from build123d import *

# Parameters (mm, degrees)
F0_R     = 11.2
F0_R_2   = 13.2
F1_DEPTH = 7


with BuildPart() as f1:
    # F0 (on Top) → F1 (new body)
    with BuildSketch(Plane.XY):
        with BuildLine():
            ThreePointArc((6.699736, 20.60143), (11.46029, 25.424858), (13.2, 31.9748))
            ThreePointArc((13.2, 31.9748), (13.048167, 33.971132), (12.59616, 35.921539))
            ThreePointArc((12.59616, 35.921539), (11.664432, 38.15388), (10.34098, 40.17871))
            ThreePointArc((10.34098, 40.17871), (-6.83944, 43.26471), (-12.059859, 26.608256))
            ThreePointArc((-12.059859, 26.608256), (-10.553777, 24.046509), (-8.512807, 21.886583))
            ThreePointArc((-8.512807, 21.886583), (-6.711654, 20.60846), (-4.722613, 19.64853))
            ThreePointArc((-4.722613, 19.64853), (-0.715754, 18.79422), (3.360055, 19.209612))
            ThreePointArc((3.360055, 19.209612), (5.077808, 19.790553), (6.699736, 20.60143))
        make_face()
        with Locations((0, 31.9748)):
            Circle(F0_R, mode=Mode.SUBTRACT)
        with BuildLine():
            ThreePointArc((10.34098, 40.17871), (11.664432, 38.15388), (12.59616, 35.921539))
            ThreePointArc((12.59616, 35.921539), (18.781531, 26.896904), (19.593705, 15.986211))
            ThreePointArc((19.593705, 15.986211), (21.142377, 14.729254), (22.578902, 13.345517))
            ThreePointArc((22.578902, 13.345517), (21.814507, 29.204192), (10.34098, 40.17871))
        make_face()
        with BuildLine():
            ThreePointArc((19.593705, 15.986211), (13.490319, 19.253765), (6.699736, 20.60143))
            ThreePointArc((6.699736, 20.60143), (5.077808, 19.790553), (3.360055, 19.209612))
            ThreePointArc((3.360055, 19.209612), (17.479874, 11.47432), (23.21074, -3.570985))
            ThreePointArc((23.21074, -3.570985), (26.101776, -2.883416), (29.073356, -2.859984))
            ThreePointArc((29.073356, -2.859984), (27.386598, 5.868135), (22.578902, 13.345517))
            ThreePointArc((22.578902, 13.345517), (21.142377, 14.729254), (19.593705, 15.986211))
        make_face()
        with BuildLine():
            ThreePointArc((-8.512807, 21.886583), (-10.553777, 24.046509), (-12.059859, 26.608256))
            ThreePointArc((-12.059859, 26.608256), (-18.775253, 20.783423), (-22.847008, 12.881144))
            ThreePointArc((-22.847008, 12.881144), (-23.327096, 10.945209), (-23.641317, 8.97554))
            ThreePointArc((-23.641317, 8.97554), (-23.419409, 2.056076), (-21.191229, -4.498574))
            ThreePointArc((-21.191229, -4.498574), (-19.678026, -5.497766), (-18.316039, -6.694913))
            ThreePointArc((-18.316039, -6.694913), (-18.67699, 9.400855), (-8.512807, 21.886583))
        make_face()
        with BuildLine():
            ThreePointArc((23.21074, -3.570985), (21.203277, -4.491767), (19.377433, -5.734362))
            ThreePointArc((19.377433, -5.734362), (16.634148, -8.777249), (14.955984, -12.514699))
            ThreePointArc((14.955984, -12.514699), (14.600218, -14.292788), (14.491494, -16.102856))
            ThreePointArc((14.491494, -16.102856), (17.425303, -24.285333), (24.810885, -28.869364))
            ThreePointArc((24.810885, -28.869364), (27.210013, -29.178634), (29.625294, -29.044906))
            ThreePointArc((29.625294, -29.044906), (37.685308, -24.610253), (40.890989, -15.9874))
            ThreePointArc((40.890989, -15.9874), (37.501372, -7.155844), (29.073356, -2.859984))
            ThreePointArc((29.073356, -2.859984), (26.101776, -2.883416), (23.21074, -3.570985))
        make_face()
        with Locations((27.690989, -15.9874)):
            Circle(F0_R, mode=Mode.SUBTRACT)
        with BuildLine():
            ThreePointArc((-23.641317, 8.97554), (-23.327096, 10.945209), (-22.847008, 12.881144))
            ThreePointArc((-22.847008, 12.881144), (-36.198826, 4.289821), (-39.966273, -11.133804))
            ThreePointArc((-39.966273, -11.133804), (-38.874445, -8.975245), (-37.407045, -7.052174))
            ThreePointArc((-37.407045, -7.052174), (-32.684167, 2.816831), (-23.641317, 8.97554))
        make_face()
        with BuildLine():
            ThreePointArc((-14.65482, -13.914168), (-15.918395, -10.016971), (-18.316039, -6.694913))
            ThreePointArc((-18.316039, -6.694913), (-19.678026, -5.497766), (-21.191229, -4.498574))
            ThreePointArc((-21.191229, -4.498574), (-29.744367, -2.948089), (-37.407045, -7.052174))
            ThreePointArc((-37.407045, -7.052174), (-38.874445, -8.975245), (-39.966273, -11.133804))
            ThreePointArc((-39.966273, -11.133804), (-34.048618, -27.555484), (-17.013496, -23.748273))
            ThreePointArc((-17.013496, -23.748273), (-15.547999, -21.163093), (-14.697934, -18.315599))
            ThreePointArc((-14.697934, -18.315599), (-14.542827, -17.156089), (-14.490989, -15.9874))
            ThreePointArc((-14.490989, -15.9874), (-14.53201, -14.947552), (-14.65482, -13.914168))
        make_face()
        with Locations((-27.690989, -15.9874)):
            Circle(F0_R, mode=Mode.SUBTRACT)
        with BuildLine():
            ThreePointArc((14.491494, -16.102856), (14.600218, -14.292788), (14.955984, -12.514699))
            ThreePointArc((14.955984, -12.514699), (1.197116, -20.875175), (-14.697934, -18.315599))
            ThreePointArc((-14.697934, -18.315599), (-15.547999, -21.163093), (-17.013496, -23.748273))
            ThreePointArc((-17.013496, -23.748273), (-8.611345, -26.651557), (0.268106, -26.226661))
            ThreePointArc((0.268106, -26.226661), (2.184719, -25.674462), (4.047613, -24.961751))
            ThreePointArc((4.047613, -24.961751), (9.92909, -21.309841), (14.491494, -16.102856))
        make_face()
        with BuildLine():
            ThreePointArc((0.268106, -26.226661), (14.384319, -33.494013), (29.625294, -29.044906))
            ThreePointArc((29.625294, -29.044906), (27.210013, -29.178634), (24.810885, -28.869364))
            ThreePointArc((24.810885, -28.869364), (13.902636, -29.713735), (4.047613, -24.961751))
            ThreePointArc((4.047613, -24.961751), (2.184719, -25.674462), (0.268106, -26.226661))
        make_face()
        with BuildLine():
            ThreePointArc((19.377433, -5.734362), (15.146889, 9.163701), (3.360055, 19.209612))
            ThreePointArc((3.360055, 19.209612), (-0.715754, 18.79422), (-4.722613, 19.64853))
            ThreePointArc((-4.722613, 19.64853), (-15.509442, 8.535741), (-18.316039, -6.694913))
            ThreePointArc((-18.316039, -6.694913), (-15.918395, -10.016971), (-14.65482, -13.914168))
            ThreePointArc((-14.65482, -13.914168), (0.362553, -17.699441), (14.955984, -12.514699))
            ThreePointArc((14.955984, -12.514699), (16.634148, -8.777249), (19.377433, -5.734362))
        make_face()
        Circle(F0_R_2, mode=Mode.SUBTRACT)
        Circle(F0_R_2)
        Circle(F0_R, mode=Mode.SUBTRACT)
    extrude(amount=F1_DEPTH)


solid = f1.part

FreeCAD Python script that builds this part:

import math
import FreeCAD as App
import Part
import Sketcher

doc = App.newDocument("Part")
body = doc.addObject("PartDesign::Body", "Body")

# Sketch on XY plane
sketch1 = body.newObject("Sketcher::SketchObject", "Sketch")
sketch1.AttachmentSupport = (doc.getObject("XY_Plane"), [""])
sketch1.MapMode = "FlatFace"
sketch1.addGeometry([
    Part.ArcOfCircle(Part.Circle(App.Vector(2.328667, 20.317206, 0), App.Vector(0, 0, 1), 21.416734), math.radians(-18.997405), math.radians(68.030398)),  # 0
    Part.ArcOfCircle(Part.Circle(App.Vector(0, 31.9748, 0), App.Vector(0, 0, 1), 13.2), math.radians(38.426363), math.radians(203.988696)),  # 1
    Part.ArcOfCircle(Part.Circle(App.Vector(-0.294816, 6.260978, 0), App.Vector(0, 0, 1), 23.503786), math.radians(120.037022), math.radians(163.640468)),  # 2
    Part.ArcOfCircle(Part.Circle(App.Vector(-18.759551, -8.141918, 0), App.Vector(0, 0, 1), 21.416732), math.radians(101.002593), math.radians(188.030403)),  # 3
    Part.ArcOfCircle(Part.Circle(App.Vector(-27.690989, -15.987401, 0), App.Vector(0, 0, 1), 13.2), math.radians(158.426362), math.radians(323.988694)),  # 4
    Part.ArcOfCircle(Part.Circle(App.Vector(-5.274758, -3.385796, 0), App.Vector(0, 0, 1), 23.503796), math.radians(-119.962964), math.radians(-76.359539)),  # 5
    Part.ArcOfCircle(Part.Circle(App.Vector(16.430884, -12.175287, 0), App.Vector(0, 0, 1), 21.416734), math.radians(-138.997405), math.radians(-51.969601)),  # 6
    Part.ArcOfCircle(Part.Circle(App.Vector(27.69099, -15.987401, 0), App.Vector(0, 0, 1), 13.199999), math.radians(-81.573637), math.radians(0.000003)),  # 7
    Part.ArcOfCircle(Part.Circle(App.Vector(27.690989, -15.9874, 0), App.Vector(0, 0, 1), 13.2), math.radians(0), math.radians(83.988692)),  # 8
    Part.ArcOfCircle(Part.Circle(App.Vector(5.569563, -2.875177, 0), App.Vector(0, 0, 1), 23.503798), math.radians(0.037036), math.radians(43.640459)),  # 9
    Part.Circle(App.Vector(-27.690989, -15.9874, 0), App.Vector(0, 0, 1), 11.2),  # 10
    Part.ArcOfCircle(Part.Circle(App.Vector(-16.737897, -10.878948, 0), App.Vector(0, 0, 1), 21.020416), math.radians(109.172602), math.radians(169.510792)),  # 11
    Part.ArcOfCircle(Part.Circle(App.Vector(-0.294819, 6.260975, 0), App.Vector(0, 0, 1), 23.503784), math.radians(173.367833), math.radians(207.24391)),  # 12
    Part.ArcOfCircle(Part.Circle(App.Vector(-27.690989, -15.987402, 0), App.Vector(0, 0, 1), 13.200002), math.radians(60.501158), math.radians(137.397263)),  # 13
    Part.ArcOfCircle(Part.Circle(App.Vector(-5.274761, -3.385798, 0), App.Vector(0, 0, 1), 23.503796), math.radians(-66.632159), math.radians(-32.7561)),  # 14
    Part.ArcOfCircle(Part.Circle(App.Vector(27.690988, -15.9874, 0), App.Vector(0, 0, 1), 13.199999), math.radians(-179.498848), math.radians(-102.602725)),  # 15
    Part.ArcOfCircle(Part.Circle(App.Vector(17.790392, -9.055975, 0), App.Vector(0, 0, 1), 21.020411), math.radians(-130.827405), math.radians(-70.4892)),  # 16
    Part.ArcOfCircle(Part.Circle(App.Vector(-27.690955, -15.987401, 0), App.Vector(0, 0, 1), 13.199966), math.radians(-10.158924), math.radians(0.000003)),  # 17
    Part.ArcOfCircle(Part.Circle(App.Vector(-27.690799, -15.987387, 0), App.Vector(0, 0, 1), 13.19981), math.radians(-0.000058), math.radians(9.036537)),  # 18
    Part.ArcOfCircle(Part.Circle(App.Vector(-0.898375, 8.980026, 0), App.Vector(0, 0, 1), 26.709248), math.radians(-121.000414), math.radians(-53.587774)),  # 19
    Part.ArcOfCircle(Part.Circle(App.Vector(-3.275084, 1.986492, 0), App.Vector(0, 0, 1), 23.294986), math.radians(-119.364021), math.radians(-38.499123)),  # 20
    Part.Circle(App.Vector(27.690989, -15.9874, 0), App.Vector(0, 0, 1), 11.2),  # 21
    Part.Circle(App.Vector(0, 0, 0), App.Vector(0, 0, 1), 11.2),  # 22
    Part.ArcOfCircle(Part.Circle(App.Vector(3.357892, 1.843061, 0), App.Vector(0, 0, 1), 23.294984), math.radians(120.635975), math.radians(201.500881)),  # 23
    Part.ArcOfCircle(Part.Circle(App.Vector(0.000029, 31.974849, 0), App.Vector(0, 0, 1), 13.200056), math.radians(-130.158858), math.radians(-110.963576)),  # 24
    Part.ArcOfCircle(Part.Circle(App.Vector(8.226115, -3.711996, 0), App.Vector(0, 0, 1), 26.709245), math.radians(118.999582), math.radians(186.41223)),  # 25
    Part.ArcOfCircle(Part.Circle(App.Vector(-0.08281, -3.829551, 0), App.Vector(0, 0, 1), 23.294985), math.radians(0.635975), math.radians(81.500877)),  # 26
    Part.ArcOfCircle(Part.Circle(App.Vector(27.691004, -15.987429, 0), App.Vector(0, 0, 1), 13.200032), math.radians(109.841122), math.radians(129.036436)),  # 27
    Part.ArcOfCircle(Part.Circle(App.Vector(-7.327743, -5.268028, 0), App.Vector(0, 0, 1), 26.709248), math.radians(-1.000414), math.radians(66.412227)),  # 28
    Part.Circle(App.Vector(0, 31.9748, 0), App.Vector(0, 0, 1), 11.2),  # 29
    Part.ArcOfCircle(Part.Circle(App.Vector(-0.000004, 31.974802, 0), App.Vector(0, 0, 1), 13.200004), math.radians(-59.498833), math.radians(-0.000009)),  # 30
    Part.ArcOfCircle(Part.Circle(App.Vector(0.000019, 31.974802, 0), App.Vector(0, 0, 1), 13.199981), math.radians(-0.00001), math.radians(17.397288)),  # 31
    Part.ArcOfCircle(Part.Circle(App.Vector(-1.052497, 19.934917, 0), App.Vector(0, 0, 1), 21.020417), math.radians(-10.827396), math.radians(49.510796)),  # 32
    Part.ArcOfCircle(Part.Circle(App.Vector(5.569569, -2.875175, 0), App.Vector(0, 0, 1), 23.503793), math.radians(53.367838), math.radians(87.243902)),  # 33
], False)
sketch1.addConstraint([
    Sketcher.Constraint("Coincident", 0, 2, 1, 1),
    Sketcher.Constraint("Coincident", 1, 2, 2, 1),
    Sketcher.Constraint("Coincident", 2, 2, 3, 1),
    Sketcher.Constraint("Coincident", 3, 2, 4, 1),
    Sketcher.Constraint("Coincident", 4, 2, 5, 1),
    Sketcher.Constraint("Coincident", 5, 2, 6, 1),
    Sketcher.Constraint("Coincident", 6, 2, 7, 1),
    Sketcher.Constraint("Coincident", 7, 2, 8, 1),
    Sketcher.Constraint("Coincident", 8, 2, 9, 1),
    Sketcher.Constraint("Coincident", 9, 2, 0, 1),
    Sketcher.Constraint("Coincident", 11, 1, 12, 1),
    Sketcher.Constraint("Coincident", 12, 2, 13, 1),
    Sketcher.Constraint("Coincident", 13, 2, 11, 2),
    Sketcher.Constraint("Coincident", 14, 2, 15, 1),
    Sketcher.Constraint("Coincident", 15, 2, 16, 2),
    Sketcher.Constraint("Coincident", 16, 1, 14, 1),
    Sketcher.Constraint("Coincident", 17, 2, 18, 1),
    Sketcher.Constraint("Coincident", 18, 2, 19, 1),
    Sketcher.Constraint("Coincident", 19, 2, 20, 2),
    Sketcher.Constraint("Coincident", 20, 1, 17, 1),
    Sketcher.Constraint("Coincident", 23, 1, 24, 1),
    Sketcher.Constraint("Coincident", 24, 2, 25, 1),
    Sketcher.Constraint("Coincident", 25, 2, 23, 2),
    Sketcher.Constraint("Coincident", 26, 1, 27, 1),
    Sketcher.Constraint("Coincident", 27, 2, 28, 1),
    Sketcher.Constraint("Coincident", 28, 2, 26, 2),
    Sketcher.Constraint("Coincident", 30, 2, 31, 1),
    Sketcher.Constraint("Coincident", 31, 2, 32, 2),
    Sketcher.Constraint("Coincident", 32, 1, 33, 1),
    Sketcher.Constraint("Coincident", 33, 2, 30, 1),
    Sketcher.Constraint("Coincident", 22, 3, -1, 1),
    Sketcher.Constraint("Coincident", 8, 3, 7, 3),
    Sketcher.Constraint("Coincident", 10, 3, 4, 3),
    Sketcher.Constraint("Coincident", 12, 3, 2, 3),
    Sketcher.Constraint("Coincident", 13, 3, 4, 3),
    Sketcher.Constraint("Coincident", 14, 3, 5, 3),
    Sketcher.Constraint("Coincident", 15, 3, 7, 3),
    Sketcher.Constraint("Coincident", 21, 3, 7, 3),
    Sketcher.Constraint("Coincident", 29, 3, 1, 3),
    Sketcher.Constraint("Coincident", 30, 3, 1, 3),
    Sketcher.Constraint("Coincident", 33, 3, 9, 3),
    Sketcher.Constraint("PointOnObject", 1, 3, -2),
    Sketcher.Constraint("Diameter", 10, 22.4),
    Sketcher.Constraint("Diameter", 21, 22.4),
    Sketcher.Constraint("Diameter", 22, 22.4),
    Sketcher.Constraint("Diameter", 29, 22.4),
    Sketcher.Constraint("Radius", 1, 13.2),
    Sketcher.Constraint("Radius", 4, 13.2),
    Sketcher.Constraint("Radius", 7, 13.199999),
    Sketcher.Constraint("Radius", 13, 13.200002),
    Sketcher.Constraint("Radius", 15, 13.199999),
    Sketcher.Constraint("DistanceX", -1, 1, 30, 2, 13.2),
    Sketcher.Constraint("Radius", 9, 23.503798),
    Sketcher.Constraint("Radius", 16, 21.020411),
    Sketcher.Constraint("Radius", 18, 13.19981),
    Sketcher.Constraint("Radius", 27, 13.200032),
    Sketcher.Constraint("Radius", 31, 13.199981),
    Sketcher.Constraint("Radius", 0, 21.416734),
    Sketcher.Constraint("Radius", 2, 23.503786),
    Sketcher.Constraint("Radius", 3, 21.416732),
    Sketcher.Constraint("Radius", 5, 23.503796),
    Sketcher.Constraint("Radius", 6, 21.416734),
    Sketcher.Constraint("Radius", 11, 21.020416),
    Sketcher.Constraint("Radius", 12, 23.503784),
    Sketcher.Constraint("Radius", 14, 23.503796),
    Sketcher.Constraint("Radius", 17, 13.199966),
    Sketcher.Constraint("Radius", 19, 26.709248),
    Sketcher.Constraint("Radius", 20, 23.294986),
    Sketcher.Constraint("Radius", 23, 23.294984),
    Sketcher.Constraint("Radius", 24, 13.200056),
    Sketcher.Constraint("Radius", 25, 26.709245),
    Sketcher.Constraint("Radius", 26, 23.294985),
    Sketcher.Constraint("Radius", 28, 26.709248),
    Sketcher.Constraint("Radius", 32, 21.020417),
    Sketcher.Constraint("Radius", 33, 23.503793),
    Sketcher.Constraint("DistanceY", -1, 1, 1, 3, 31.9748),
    Sketcher.Constraint("DistanceY", 4, 3, -1, 1, 15.987401),
    Sketcher.Constraint("DistanceY", 7, 3, -1, 1, 15.987401),
    Sketcher.Constraint("DistanceY", 14, 3, -1, 1, 3.385798),
    Sketcher.Constraint("DistanceY", 17, 3, -1, 1, 15.987401),
    Sketcher.Constraint("DistanceX", 18, 3, -1, 1, 27.690799),
    Sketcher.Constraint("DistanceY", 7, 2, -1, 1, 15.9874),
    Sketcher.Constraint("DistanceX", -1, 1, 9, 2, 22.578902),
    Sketcher.Constraint("DistanceY", 17, 2, -1, 1, 15.9874),
    Sketcher.Constraint("DistanceY", 19, 2, -1, 1, 12.514699),
    Sketcher.Constraint("DistanceY", 20, 1, -1, 1, 18.315599),
    Sketcher.Constraint("DistanceY", -1, 1, 30, 2, 31.9748),
    Sketcher.Constraint("DistanceX", 3, 3, -1, 1, 18.759551),
    Sketcher.Constraint("DistanceX", 4, 3, -1, 1, 27.690989),
    Sketcher.Constraint("DistanceX", -1, 1, 7, 3, 27.69099),
    Sketcher.Constraint("DistanceX", 12, 3, -1, 1, 0.294819),
    Sketcher.Constraint("DistanceX", 14, 3, -1, 1, 5.274761),
    Sketcher.Constraint("DistanceY", -1, 1, 20, 3, 1.986492),
    Sketcher.Constraint("DistanceY", -1, 1, 23, 3, 1.843061),
    Sketcher.Constraint("DistanceY", -1, 1, 24, 3, 31.974849),
    Sketcher.Constraint("DistanceX", 26, 3, -1, 1, 0.08281),
    Sketcher.Constraint("DistanceY", 26, 3, -1, 1, 3.829551),
    Sketcher.Constraint("DistanceY", 27, 3, -1, 1, 15.987429),
    Sketcher.Constraint("DistanceY", 28, 3, -1, 1, 5.268028),
    Sketcher.Constraint("DistanceX", -1, 1, 33, 3, 5.569569),
    Sketcher.Constraint("DistanceX", -1, 1, 0, 2, 10.34098),
    Sketcher.Constraint("DistanceX", 1, 2, -1, 1, 12.059859),
    Sketcher.Constraint("DistanceY", 5, 2, -1, 1, 26.226661),
    Sketcher.Constraint("DistanceY", -1, 1, 11, 1, 8.97554),
    Sketcher.Constraint("DistanceY", 16, 1, -1, 1, 24.961751),
    Sketcher.Constraint("DistanceX", 18, 2, -1, 1, 14.65482),
    Sketcher.Constraint("DistanceY", -1, 1, 24, 2, 19.64853),
    Sketcher.Constraint("DistanceX", 25, 2, -1, 1, 18.316039),
    Sketcher.Constraint("DistanceX", -1, 1, 26, 1, 23.21074),
    Sketcher.Constraint("DistanceY", 27, 2, -1, 1, 5.734362),
    Sketcher.Constraint("DistanceX", -1, 1, 31, 2, 12.59616),
    Sketcher.Constraint("DistanceY", -1, 1, 31, 2, 35.921539),
    Sketcher.Constraint("DistanceY", -1, 1, 32, 1, 15.986211),
    Sketcher.Constraint("DistanceY", -1, 1, 33, 2, 20.60143),
    Sketcher.Constraint("DistanceY", 3, 3, -1, 1, 8.141918),
    Sketcher.Constraint("DistanceX", -1, 1, 6, 3, 16.430884),
    Sketcher.Constraint("DistanceX", 11, 3, -1, 1, 16.737897),
    Sketcher.Constraint("DistanceX", -1, 1, 16, 3, 17.790392),
    Sketcher.Constraint("DistanceY", 18, 3, -1, 1, 15.987387),
    Sketcher.Constraint("DistanceX", -1, 1, 23, 3, 3.357892),
    Sketcher.Constraint("DistanceX", -1, 1, 25, 3, 8.226115),
])
pad1 = body.newObject("PartDesign::Pad", "Pad")
pad1.Profile = sketch1
pad1.Length = 7

doc.recompute()
